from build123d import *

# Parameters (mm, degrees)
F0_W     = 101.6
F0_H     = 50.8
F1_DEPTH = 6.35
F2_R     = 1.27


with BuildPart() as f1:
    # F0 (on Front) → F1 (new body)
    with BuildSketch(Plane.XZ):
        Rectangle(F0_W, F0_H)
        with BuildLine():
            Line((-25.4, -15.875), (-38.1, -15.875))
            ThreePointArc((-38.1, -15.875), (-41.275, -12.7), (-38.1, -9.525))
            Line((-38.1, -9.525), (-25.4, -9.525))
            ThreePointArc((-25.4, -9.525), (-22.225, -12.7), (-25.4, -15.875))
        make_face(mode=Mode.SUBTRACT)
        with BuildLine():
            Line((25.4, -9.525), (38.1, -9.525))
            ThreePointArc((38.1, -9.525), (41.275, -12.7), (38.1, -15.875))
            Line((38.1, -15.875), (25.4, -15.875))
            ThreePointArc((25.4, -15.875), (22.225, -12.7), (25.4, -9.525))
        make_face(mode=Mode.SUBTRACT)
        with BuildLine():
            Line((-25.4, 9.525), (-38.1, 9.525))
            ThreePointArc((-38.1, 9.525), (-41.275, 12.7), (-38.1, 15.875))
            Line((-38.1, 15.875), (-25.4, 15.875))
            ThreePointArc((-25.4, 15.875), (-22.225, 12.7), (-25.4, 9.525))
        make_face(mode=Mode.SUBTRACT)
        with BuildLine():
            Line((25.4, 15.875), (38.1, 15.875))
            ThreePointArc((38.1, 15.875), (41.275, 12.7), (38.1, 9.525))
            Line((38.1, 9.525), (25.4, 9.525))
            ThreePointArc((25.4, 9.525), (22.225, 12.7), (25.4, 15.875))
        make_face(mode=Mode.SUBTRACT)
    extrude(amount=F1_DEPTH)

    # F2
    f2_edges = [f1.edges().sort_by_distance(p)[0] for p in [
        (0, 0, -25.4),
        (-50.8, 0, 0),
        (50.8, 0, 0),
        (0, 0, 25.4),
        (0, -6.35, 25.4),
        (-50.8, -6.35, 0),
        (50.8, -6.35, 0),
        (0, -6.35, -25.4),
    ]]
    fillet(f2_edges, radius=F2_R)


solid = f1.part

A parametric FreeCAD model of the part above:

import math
import FreeCAD as App
import Part
import Sketcher
from FreeCAD import Vector
Q = App.Units.Quantity


def edges_at(feature, points):
    """Names of the edges that pass closest to the given points."""
    edges = feature.Shape.Edges
    near = lambda p: min(range(len(edges)), key=lambda i: edges[i].distToShape(Part.Vertex(*p))[0])
    return sorted({f"Edge{near(p) + 1}" for p in points})

doc = App.newDocument("Part")
body = doc.addObject("PartDesign::Body", "Body")

sketch1 = body.newObject("Sketcher::SketchObject", "Sketch")
sketch1.AttachmentSupport = (doc.getObject("XZ_Plane"), [""])
sketch1.MapMode = "FlatFace"
sketch1.addGeometry([
    Part.LineSegment(Vector(-50.8, 25.4, 0), Vector(-50.8, -25.4, 0)),
    Part.LineSegment(Vector(-50.8, -25.4, 0), Vector(50.8, -25.4, 0)),
    Part.LineSegment(Vector(50.8, -25.4, 0), Vector(50.8, 25.4, 0)),
    Part.LineSegment(Vector(50.8, 25.4, 0), Vector(-50.8, 25.4, 0)),
    Part.ArcOfCircle(Part.Circle(Vector(-25.4, -12.7, 0), Vector(0, 0, 1), 3.2), math.radians(-90), math.radians(90)),
    Part.LineSegment(Vector(-25.4, -15.9, 0), Vector(-38.1, -15.9, 0)),
    Part.ArcOfCircle(Part.Circle(Vector(-38.1, -12.7, 0), Vector(0, 0, 1), 3.2), math.radians(90), math.radians(270)),
    Part.LineSegment(Vector(-38.1, -9.5, 0), Vector(-25.4, -9.5, 0)),
    Part.ArcOfCircle(Part.Circle(Vector(25.4, -12.7, 0), Vector(0, 0, 1), 3.2), math.radians(90), math.radians(270)),
    Part.LineSegment(Vector(25.4, -9.5, 0), Vector(38.1, -9.5, 0)),
    Part.ArcOfCircle(Part.Circle(Vector(38.1, -12.7, 0), Vector(0, 0, 1), 3.2), math.radians(-90), math.radians(90)),
    Part.LineSegment(Vector(38.1, -15.9, 0), Vector(25.4, -15.9, 0)),
    Part.ArcOfCircle(Part.Circle(Vector(-25.4, 12.7, 0), Vector(0, 0, 1), 3.2), math.radians(-90), math.radians(90)),
    Part.LineSegment(Vector(-25.4, 9.5, 0), Vector(-38.1, 9.5, 0)),
    Part.ArcOfCircle(Part.Circle(Vector(-38.1, 12.7, 0), Vector(0, 0, 1), 3.2), math.radians(90), math.radians(270)),
    Part.LineSegment(Vector(-38.1, 15.9, 0), Vector(-25.4, 15.9, 0)),
    Part.ArcOfCircle(Part.Circle(Vector(25.4, 12.7, 0), Vector(0, 0, 1), 3.2), math.radians(90), math.radians(270)),
    Part.LineSegment(Vector(25.4, 15.9, 0), Vector(38.1, 15.9, 0)),
    Part.ArcOfCircle(Part.Circle(Vector(38.1, 12.7, 0), Vector(0, 0, 1), 3.2), math.radians(-90), math.radians(90)),
    Part.LineSegment(Vector(38.1, 9.5, 0), Vector(25.4, 9.5, 0)),
], False)
sketch1.addConstraint([
    Sketcher.Constraint("Coincident", 0, 2, 1, 1),
    Sketcher.Constraint("Coincident", 1, 2, 2, 1),
    Sketcher.Constraint("Coincident", 2, 2, 3, 1),
    Sketcher.Constraint("Coincident", 3, 2, 0, 1),
    Sketcher.Constraint("Tangent", 4, 1, 5, 1),
    Sketcher.Constraint("Tangent", 5, 2, 6, 2),
    Sketcher.Constraint("Tangent", 6, 1, 7, 1),
    Sketcher.Constraint("Tangent", 7, 2, 4, 2),
    Sketcher.Constraint("Tangent", 8, 1, 9, 1),
    Sketcher.Constraint("Tangent", 9, 2, 10, 2),
    Sketcher.Constraint("Tangent", 10, 1, 11, 1),
    Sketcher.Constraint("Tangent", 11, 2, 8, 2),
    Sketcher.Constraint("Tangent", 12, 1, 13, 1),
    Sketcher.Constraint("Tangent", 13, 2, 14, 2),
    Sketcher.Constraint("Tangent", 14, 1, 15, 1),
    Sketcher.Constraint("Tangent", 15, 2, 12, 2),
    Sketcher.Constraint("Tangent", 16, 1, 17, 1),
    Sketcher.Constraint("Tangent", 17, 2, 18, 2),
    Sketcher.Constraint("Tangent", 18, 1, 19, 1),
    Sketcher.Constraint("Tangent", 19, 2, 16, 2),
    Sketcher.Constraint("Vertical", 0),
    Sketcher.Constraint("Horizontal", 1),
    Sketcher.Constraint("Vertical", 2),
    Sketcher.Constraint("Horizontal", 3),
    Sketcher.Constraint("Horizontal", 5),
    Sketcher.Constraint("Horizontal", 7),
    Sketcher.Constraint("Horizontal", 9),
    Sketcher.Constraint("Horizontal", 11),
    Sketcher.Constraint("Horizontal", 13),
    Sketcher.Constraint("Horizontal", 15),
    Sketcher.Constraint("Horizontal", 17),
    Sketcher.Constraint("Horizontal", 19),
    Sketcher.Constraint("Equal", 6, 8),
    Sketcher.Constraint("Equal", 10, 12),
    Sketcher.Constraint("Equal", 14, 16),
    Sketcher.Constraint("Symmetric", 8, 3, 12, 3, -1, 1),
    Sketcher.Constraint("Symmetric", 4, 3, 16, 3, -1, 1),
    Sketcher.Constraint("Symmetric", 0, 2, 2, 2, -1, 1),
    Sketcher.Constraint("Symmetric", 4, 3, 8, 3, -2),
    Sketcher.Constraint("Vertical", 6, 3, 14, 3),
    Sketcher.Constraint("Vertical", 10, 3, 18, 3),
    Sketcher.Constraint("Equal", 7, 9),
    Sketcher.Constraint("DistanceX", 1, 1, 1, 2, Q("4 in")),
    Sketcher.Constraint("DistanceY", 0, 2, 0, 1, Q("2 in")),
    Sketcher.Constraint("DistanceX", 5, 2, 5, 1, Q("0.5 in")),
    Sketcher.Constraint("DistanceX", 4, 3, -1, 1, Q("1 in")),
    Sketcher.Constraint("Radius", 4, Q("0.125 in")),
    Sketcher.Constraint("DistanceY", 4, 3, 12, 3, Q("1 in")),
])
pad1 = body.newObject("PartDesign::Pad", "Pad")
pad1.Profile = sketch1
pad1.Length = Q("0.25 in")
doc.recompute()

fillet = body.newObject("PartDesign::Fillet", "Fillet")
fillet.Base = (pad1, edges_at(pad1, [
    (0, 0, -25.4),
    (-50.8, 0, 0),
    (50.8, 0, 0),
    (0, 0, 25.4),
    (0, -6.35, 25.4),
    (-50.8, -6.35, 0),
    (50.8, -6.35, 0),
    (0, -6.35, -25.4),
]))
fillet.Radius = Q("0.05 in")

doc.recompute()
